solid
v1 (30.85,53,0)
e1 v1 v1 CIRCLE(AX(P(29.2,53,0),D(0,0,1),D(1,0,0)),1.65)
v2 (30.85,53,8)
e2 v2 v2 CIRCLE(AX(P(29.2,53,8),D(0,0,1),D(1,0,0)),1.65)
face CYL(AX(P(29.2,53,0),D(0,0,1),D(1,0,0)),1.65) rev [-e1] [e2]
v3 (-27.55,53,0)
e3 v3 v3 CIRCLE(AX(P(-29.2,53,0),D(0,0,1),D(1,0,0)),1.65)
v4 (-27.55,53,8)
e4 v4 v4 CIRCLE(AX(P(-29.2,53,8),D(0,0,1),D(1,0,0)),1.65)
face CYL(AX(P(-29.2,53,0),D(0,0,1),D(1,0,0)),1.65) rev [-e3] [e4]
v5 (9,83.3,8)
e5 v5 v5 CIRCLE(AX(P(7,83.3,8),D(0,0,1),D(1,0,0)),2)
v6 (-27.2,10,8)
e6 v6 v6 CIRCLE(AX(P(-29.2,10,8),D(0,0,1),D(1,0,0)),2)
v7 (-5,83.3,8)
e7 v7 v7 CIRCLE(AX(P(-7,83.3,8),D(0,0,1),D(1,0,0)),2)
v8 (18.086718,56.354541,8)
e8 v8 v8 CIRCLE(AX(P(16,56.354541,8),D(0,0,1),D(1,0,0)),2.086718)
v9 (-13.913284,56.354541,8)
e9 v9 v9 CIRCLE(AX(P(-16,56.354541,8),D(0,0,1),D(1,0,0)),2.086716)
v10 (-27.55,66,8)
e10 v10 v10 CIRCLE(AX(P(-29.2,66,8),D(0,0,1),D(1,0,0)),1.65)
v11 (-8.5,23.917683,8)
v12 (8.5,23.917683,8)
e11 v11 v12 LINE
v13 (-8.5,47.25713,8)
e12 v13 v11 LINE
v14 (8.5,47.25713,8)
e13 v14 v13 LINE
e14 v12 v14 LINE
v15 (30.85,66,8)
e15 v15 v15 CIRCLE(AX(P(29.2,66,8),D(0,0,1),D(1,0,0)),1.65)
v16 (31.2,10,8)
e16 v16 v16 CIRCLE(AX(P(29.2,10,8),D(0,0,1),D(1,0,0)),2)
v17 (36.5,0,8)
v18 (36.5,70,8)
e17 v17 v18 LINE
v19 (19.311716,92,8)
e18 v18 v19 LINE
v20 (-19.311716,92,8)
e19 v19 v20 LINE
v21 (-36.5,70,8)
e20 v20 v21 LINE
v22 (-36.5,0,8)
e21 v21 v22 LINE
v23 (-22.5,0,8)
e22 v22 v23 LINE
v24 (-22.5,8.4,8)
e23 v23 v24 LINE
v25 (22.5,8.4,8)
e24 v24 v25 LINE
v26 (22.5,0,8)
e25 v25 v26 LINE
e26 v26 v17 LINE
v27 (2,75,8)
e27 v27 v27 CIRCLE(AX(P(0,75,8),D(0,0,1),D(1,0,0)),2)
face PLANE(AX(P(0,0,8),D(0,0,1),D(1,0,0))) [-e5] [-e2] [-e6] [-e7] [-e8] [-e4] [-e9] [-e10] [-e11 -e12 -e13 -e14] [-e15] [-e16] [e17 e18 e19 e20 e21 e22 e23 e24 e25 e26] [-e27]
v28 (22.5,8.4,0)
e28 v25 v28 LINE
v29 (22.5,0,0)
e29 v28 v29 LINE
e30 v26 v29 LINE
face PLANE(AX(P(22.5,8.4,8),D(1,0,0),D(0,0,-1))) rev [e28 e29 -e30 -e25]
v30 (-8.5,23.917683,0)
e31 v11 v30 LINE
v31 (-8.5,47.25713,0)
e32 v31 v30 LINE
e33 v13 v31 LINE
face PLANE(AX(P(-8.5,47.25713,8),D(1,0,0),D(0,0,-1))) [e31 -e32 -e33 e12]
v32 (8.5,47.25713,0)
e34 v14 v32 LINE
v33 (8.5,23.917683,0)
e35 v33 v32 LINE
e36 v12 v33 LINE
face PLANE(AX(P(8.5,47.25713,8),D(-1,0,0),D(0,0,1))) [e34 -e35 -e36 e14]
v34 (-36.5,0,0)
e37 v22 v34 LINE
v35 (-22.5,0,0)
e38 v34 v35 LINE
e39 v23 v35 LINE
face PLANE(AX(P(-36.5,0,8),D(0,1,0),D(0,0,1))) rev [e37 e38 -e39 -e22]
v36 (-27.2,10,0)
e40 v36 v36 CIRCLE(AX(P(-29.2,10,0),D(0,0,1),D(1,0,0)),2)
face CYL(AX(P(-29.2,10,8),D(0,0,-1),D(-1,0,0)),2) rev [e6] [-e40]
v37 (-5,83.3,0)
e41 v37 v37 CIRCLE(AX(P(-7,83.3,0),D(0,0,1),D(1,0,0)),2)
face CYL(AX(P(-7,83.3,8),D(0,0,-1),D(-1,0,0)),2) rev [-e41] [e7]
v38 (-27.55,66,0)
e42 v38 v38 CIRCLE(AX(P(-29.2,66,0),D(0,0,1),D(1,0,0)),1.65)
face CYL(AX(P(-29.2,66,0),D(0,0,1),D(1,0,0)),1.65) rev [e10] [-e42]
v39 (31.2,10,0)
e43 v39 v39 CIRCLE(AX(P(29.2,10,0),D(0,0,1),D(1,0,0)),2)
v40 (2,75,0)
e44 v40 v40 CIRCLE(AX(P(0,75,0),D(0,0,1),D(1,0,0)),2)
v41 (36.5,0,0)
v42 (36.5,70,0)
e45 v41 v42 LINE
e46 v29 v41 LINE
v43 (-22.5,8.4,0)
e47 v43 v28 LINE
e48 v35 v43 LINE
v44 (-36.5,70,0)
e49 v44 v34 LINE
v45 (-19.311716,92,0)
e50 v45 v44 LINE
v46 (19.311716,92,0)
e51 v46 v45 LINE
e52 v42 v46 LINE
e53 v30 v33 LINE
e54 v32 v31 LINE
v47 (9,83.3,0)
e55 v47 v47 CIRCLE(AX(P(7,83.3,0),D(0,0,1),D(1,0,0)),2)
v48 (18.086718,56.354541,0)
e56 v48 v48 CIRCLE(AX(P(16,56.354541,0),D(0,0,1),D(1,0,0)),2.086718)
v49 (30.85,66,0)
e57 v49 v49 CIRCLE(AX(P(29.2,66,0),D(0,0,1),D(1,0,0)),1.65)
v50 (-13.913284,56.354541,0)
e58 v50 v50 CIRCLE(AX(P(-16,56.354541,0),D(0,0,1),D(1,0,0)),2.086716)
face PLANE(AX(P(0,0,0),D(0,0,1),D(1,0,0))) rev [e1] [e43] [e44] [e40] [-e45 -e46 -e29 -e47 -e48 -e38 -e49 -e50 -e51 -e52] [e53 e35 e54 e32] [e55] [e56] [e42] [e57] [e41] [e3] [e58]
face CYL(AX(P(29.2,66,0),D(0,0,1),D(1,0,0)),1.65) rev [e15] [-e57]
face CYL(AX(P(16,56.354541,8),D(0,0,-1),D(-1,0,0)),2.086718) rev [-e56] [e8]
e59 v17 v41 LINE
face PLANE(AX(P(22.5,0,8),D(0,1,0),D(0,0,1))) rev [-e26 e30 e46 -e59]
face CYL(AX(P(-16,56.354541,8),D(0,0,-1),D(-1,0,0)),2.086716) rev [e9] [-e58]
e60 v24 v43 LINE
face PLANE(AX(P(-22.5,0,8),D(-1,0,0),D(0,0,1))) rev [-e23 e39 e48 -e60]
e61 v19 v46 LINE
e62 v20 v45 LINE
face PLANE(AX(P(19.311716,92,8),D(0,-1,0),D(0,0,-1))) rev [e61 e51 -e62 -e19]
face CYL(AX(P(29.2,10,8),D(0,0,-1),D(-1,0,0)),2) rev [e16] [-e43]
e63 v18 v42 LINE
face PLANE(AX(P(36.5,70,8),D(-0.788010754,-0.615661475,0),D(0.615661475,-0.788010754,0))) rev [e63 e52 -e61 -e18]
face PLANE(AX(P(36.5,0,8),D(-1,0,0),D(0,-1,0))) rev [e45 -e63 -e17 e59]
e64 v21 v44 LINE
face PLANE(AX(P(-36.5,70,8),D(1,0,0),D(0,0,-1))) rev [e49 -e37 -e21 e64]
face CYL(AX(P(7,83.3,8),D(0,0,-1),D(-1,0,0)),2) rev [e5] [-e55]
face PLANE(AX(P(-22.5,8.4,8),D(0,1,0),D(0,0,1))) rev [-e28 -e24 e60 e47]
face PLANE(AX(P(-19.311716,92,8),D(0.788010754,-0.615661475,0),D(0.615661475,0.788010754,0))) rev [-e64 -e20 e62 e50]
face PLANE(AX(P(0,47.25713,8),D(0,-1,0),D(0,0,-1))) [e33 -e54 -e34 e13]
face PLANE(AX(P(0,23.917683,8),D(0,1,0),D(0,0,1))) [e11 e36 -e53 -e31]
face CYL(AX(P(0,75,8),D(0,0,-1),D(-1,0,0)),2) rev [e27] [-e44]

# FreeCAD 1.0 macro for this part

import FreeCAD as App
import Part
import Sketcher

V = App.Vector
Q = App.Units.Quantity

doc = App.newDocument("Part")
params = doc.addObject("Spreadsheet::Sheet", "Params")
for row, (alias, value) in enumerate([
    ("sketch1_diameter", "4 mm"),
    ("sketch1_width", "14 mm"),
    ("sketch1_width2", "45 mm"),
    ("sketch1_width3", "17 mm"),
    ("sketch1_height", "70 mm"),
    ("pad1_length", "8 mm"),
    ("sketch2_diameter", "3.3 mm"),
], start=1):
    params.set(f"A{row}", alias)
    params.set(f"B{row}", "=" + value)
    params.setAlias(f"B{row}", alias)

body = doc.addObject("PartDesign::Body", "Body")

# Sketch on XY plane
sketch1 = body.newObject("Sketcher::SketchObject", "Sketch")
sketch1.AttachmentSupport = (doc.getObject("XY_Plane"), [""])
sketch1.MapMode = "FlatFace"
sketch1.addGeometry([
    Part.LineSegment(V(19.311716, 92, 0), V(-19.311716, 92, 0)),  # 0
    Part.LineSegment(V(-19.311716, 92, 0), V(-36.5, 70, 0)),  # 1
    Part.LineSegment(V(-36.5, 70, 0), V(-36.5, 0, 0)),  # 2
    Part.LineSegment(V(-36.5, 0, 0), V(-22.5, 0, 0)),  # 3
    Part.LineSegment(V(-22.5, 0, 0), V(-22.5, 8.4, 0)),  # 4
    Part.LineSegment(V(-22.5, 8.4, 0), V(22.5, 8.4, 0)),  # 5
    Part.LineSegment(V(22.5, 8.4, 0), V(22.5, 0, 0)),  # 6
    Part.LineSegment(V(22.5, 0, 0), V(36.5, 0, 0)),  # 7
    Part.LineSegment(V(36.5, 0, 0), V(36.5, 70, 0)),  # 8
    Part.LineSegment(V(36.5, 70, 0), V(19.311716, 92, 0)),  # 9
    Part.Circle(V(-29.2, 10, 0), V(0, 0, 1), 2),  # 10
    Part.Circle(V(29.2, 10, 0), V(0, 0, 1), 2),  # 11
    Part.LineSegment(V(-8.5, 47.25713, 0), V(8.5, 47.25713, 0)),  # 12
    Part.LineSegment(V(8.5, 47.25713, 0), V(8.5, 23.917683, 0)),  # 13
    Part.LineSegment(V(8.5, 23.917683, 0), V(-8.5, 23.917683, 0)),  # 14
    Part.LineSegment(V(-8.5, 23.917683, 0), V(-8.5, 47.25713, 0)),  # 15
    Part.Circle(V(-16, 56.354541, 0), V(0, 0, 1), 2.086716),  # 16
    Part.Circle(V(-7, 83.3, 0), V(0, 0, 1), 2),  # 17
    Part.Circle(V(16, 56.354541, 0), V(0, 0, 1), 2.086718),  # 18
    Part.Circle(V(0, 75, 0), V(0, 0, 1), 2),  # 19
    Part.Circle(V(7, 83.3, 0), V(0, 0, 1), 2),  # 20
], False)
sketch1.addConstraint([
    Sketcher.Constraint("Coincident", 0, 2, 1, 1),
    Sketcher.Constraint("Coincident", 1, 2, 2, 1),
    Sketcher.Constraint("Coincident", 2, 2, 3, 1),
    Sketcher.Constraint("Coincident", 3, 2, 4, 1),
    Sketcher.Constraint("Coincident", 4, 2, 5, 1),
    Sketcher.Constraint("Coincident", 5, 2, 6, 1),
    Sketcher.Constraint("Coincident", 6, 2, 7, 1),
    Sketcher.Constraint("Coincident", 7, 2, 8, 1),
    Sketcher.Constraint("Coincident", 8, 2, 9, 1),
    Sketcher.Constraint("Coincident", 9, 2, 0, 1),
    Sketcher.Constraint("Coincident", 12, 2, 13, 1),
    Sketcher.Constraint("Coincident", 13, 2, 14, 1),
    Sketcher.Constraint("Coincident", 14, 2, 15, 1),
    Sketcher.Constraint("Coincident", 15, 2, 12, 1),
    Sketcher.Constraint("Horizontal", 0),
    Sketcher.Constraint("Vertical", 2),
    Sketcher.Constraint("Horizontal", 3),
    Sketcher.Constraint("Vertical", 4),
    Sketcher.Constraint("Horizontal", 5),
    Sketcher.Constraint("Vertical", 6),
    Sketcher.Constraint("Horizontal", 7),
    Sketcher.Constraint("Vertical", 8),
    Sketcher.Constraint("Horizontal", 12),
    Sketcher.Constraint("Vertical", 13),
    Sketcher.Constraint("Horizontal", 14),
    Sketcher.Constraint("Vertical", 15),
    Sketcher.Constraint("Equal", 10, 11),
    Sketcher.Constraint("Equal", 11, 17),
    Sketcher.Constraint("Equal", 16, 18),
    Sketcher.Constraint("Equal", 17, 19),
    Sketcher.Constraint("Equal", 19, 20),
    Sketcher.Constraint("Symmetric", 3, 2, 6, 2, -1, 1),
    Sketcher.Constraint("Symmetric", 10, 3, 11, 3, -2),
    Sketcher.Constraint("Symmetric", 16, 3, 18, 3, -2),
    Sketcher.Constraint("Symmetric", 17, 3, 20, 3, -2),
    Sketcher.Constraint("Symmetric", 2, 2, 7, 2, -2),
    Sketcher.Constraint("PointOnObject", 19, 3, -2),
    Sketcher.Constraint("Horizontal", 1, 2, 8, 2),
    Sketcher.Constraint("Equal", 1, 9),
    Sketcher.Constraint("Diameter", 10, 4.0),
    Sketcher.Constraint("DistanceX", 3, 1, 3, 2, 14.0),
    Sketcher.Constraint("DistanceX", 5, 1, 5, 2, 45.0),
    Sketcher.Constraint("DistanceX", 12, 1, 12, 2, 17.0),
    Sketcher.Constraint("DistanceY", 2, 2, 2, 1, 70.0),
    Sketcher.Constraint("Angle", 1, Q("-128 deg")),
    Sketcher.Constraint("DistanceY", 4, 1, 4, 2, 8.4),
    Sketcher.Constraint("DistanceY", -1, 1, 10, 3, 10.0),
    Sketcher.Constraint("DistanceX", 16, 3, -1, 1, 16.0),
    Sketcher.Constraint("DistanceX", 17, 3, -1, 1, 7.0),
    Sketcher.Constraint("DistanceY", -1, 1, 19, 3, 75.0),
    Sketcher.Constraint("DistanceY", -1, 1, 0, 2, 92.0),
    Sketcher.Constraint("DistanceX", 12, 2, 8, 2, 28.0),
    Sketcher.Constraint("DistanceX", 10, 3, -1, 1, 29.2),
    Sketcher.Constraint("DistanceY", -1, 1, 17, 3, 83.3),
    Sketcher.Constraint("Diameter", 16, 4.173432),
    Sketcher.Constraint("DistanceY", 13, 2, 13, 1, 23.339447),
    Sketcher.Constraint("DistanceY", -1, 1, 16, 3, 56.354541),
    Sketcher.Constraint("DistanceY", -1, 1, 12, 2, 47.25713),
])
sketch1.setExpression("Constraints[39]", "Params.sketch1_diameter")
sketch1.setExpression("Constraints[40]", "Params.sketch1_width")
sketch1.setExpression("Constraints[41]", "Params.sketch1_width2")
sketch1.setExpression("Constraints[42]", "Params.sketch1_width3")
sketch1.setExpression("Constraints[43]", "Params.sketch1_height")
pad1 = body.newObject("PartDesign::Pad", "Pad")
pad1.Profile = sketch1
pad1.setExpression("Length", "Params.pad1_length")

# Sketch on XY plane
sketch2 = body.newObject("Sketcher::SketchObject", "Sketch001")
sketch2.AttachmentSupport = (doc.getObject("XY_Plane"), [""])
sketch2.MapMode = "FlatFace"
sketch2.AttachmentOffset = App.Placement(V(0, 0, 8), App.Rotation())
sketch2.addGeometry([
    Part.Circle(V(-29.2, 66, 0), V(0, 0, 1), 1.65),
    Part.Circle(V(-29.2, 53, 0), V(0, 0, 1), 1.65),
    Part.Circle(V(29.2, 53, 0), V(0, 0, 1), 1.65),
    Part.Circle(V(29.2, 66, 0), V(0, 0, 1), 1.65),
], False)
sketch2.addConstraint([
    Sketcher.Constraint("Equal", 0, 1),
    Sketcher.Constraint("Equal", 1, 2),
    Sketcher.Constraint("Equal", 2, 3),
    Sketcher.Constraint("Symmetric", 1, 3, 2, 3, -2),
    Sketcher.Constraint("Symmetric", 0, 3, 3, 3, -2),
    Sketcher.Constraint("Vertical", 0, 3, 1, 3),
    Sketcher.Constraint("Diameter", 0, 3.3),
    Sketcher.Constraint("DistanceY", -1, 1, 0, 3, 66.0),
    Sketcher.Constraint("DistanceY", -1, 1, 1, 3, 53.0),
    Sketcher.Constraint("DistanceX", 0, 3, -1, 1, 29.2),
])
sketch2.setExpression("Constraints[6]", "Params.sketch2_diameter")
pocket1 = body.newObject("PartDesign::Pocket", "Pocket")
pocket1.Profile = sketch2
pocket1.Type = "ThroughAll"

doc.recompute()
